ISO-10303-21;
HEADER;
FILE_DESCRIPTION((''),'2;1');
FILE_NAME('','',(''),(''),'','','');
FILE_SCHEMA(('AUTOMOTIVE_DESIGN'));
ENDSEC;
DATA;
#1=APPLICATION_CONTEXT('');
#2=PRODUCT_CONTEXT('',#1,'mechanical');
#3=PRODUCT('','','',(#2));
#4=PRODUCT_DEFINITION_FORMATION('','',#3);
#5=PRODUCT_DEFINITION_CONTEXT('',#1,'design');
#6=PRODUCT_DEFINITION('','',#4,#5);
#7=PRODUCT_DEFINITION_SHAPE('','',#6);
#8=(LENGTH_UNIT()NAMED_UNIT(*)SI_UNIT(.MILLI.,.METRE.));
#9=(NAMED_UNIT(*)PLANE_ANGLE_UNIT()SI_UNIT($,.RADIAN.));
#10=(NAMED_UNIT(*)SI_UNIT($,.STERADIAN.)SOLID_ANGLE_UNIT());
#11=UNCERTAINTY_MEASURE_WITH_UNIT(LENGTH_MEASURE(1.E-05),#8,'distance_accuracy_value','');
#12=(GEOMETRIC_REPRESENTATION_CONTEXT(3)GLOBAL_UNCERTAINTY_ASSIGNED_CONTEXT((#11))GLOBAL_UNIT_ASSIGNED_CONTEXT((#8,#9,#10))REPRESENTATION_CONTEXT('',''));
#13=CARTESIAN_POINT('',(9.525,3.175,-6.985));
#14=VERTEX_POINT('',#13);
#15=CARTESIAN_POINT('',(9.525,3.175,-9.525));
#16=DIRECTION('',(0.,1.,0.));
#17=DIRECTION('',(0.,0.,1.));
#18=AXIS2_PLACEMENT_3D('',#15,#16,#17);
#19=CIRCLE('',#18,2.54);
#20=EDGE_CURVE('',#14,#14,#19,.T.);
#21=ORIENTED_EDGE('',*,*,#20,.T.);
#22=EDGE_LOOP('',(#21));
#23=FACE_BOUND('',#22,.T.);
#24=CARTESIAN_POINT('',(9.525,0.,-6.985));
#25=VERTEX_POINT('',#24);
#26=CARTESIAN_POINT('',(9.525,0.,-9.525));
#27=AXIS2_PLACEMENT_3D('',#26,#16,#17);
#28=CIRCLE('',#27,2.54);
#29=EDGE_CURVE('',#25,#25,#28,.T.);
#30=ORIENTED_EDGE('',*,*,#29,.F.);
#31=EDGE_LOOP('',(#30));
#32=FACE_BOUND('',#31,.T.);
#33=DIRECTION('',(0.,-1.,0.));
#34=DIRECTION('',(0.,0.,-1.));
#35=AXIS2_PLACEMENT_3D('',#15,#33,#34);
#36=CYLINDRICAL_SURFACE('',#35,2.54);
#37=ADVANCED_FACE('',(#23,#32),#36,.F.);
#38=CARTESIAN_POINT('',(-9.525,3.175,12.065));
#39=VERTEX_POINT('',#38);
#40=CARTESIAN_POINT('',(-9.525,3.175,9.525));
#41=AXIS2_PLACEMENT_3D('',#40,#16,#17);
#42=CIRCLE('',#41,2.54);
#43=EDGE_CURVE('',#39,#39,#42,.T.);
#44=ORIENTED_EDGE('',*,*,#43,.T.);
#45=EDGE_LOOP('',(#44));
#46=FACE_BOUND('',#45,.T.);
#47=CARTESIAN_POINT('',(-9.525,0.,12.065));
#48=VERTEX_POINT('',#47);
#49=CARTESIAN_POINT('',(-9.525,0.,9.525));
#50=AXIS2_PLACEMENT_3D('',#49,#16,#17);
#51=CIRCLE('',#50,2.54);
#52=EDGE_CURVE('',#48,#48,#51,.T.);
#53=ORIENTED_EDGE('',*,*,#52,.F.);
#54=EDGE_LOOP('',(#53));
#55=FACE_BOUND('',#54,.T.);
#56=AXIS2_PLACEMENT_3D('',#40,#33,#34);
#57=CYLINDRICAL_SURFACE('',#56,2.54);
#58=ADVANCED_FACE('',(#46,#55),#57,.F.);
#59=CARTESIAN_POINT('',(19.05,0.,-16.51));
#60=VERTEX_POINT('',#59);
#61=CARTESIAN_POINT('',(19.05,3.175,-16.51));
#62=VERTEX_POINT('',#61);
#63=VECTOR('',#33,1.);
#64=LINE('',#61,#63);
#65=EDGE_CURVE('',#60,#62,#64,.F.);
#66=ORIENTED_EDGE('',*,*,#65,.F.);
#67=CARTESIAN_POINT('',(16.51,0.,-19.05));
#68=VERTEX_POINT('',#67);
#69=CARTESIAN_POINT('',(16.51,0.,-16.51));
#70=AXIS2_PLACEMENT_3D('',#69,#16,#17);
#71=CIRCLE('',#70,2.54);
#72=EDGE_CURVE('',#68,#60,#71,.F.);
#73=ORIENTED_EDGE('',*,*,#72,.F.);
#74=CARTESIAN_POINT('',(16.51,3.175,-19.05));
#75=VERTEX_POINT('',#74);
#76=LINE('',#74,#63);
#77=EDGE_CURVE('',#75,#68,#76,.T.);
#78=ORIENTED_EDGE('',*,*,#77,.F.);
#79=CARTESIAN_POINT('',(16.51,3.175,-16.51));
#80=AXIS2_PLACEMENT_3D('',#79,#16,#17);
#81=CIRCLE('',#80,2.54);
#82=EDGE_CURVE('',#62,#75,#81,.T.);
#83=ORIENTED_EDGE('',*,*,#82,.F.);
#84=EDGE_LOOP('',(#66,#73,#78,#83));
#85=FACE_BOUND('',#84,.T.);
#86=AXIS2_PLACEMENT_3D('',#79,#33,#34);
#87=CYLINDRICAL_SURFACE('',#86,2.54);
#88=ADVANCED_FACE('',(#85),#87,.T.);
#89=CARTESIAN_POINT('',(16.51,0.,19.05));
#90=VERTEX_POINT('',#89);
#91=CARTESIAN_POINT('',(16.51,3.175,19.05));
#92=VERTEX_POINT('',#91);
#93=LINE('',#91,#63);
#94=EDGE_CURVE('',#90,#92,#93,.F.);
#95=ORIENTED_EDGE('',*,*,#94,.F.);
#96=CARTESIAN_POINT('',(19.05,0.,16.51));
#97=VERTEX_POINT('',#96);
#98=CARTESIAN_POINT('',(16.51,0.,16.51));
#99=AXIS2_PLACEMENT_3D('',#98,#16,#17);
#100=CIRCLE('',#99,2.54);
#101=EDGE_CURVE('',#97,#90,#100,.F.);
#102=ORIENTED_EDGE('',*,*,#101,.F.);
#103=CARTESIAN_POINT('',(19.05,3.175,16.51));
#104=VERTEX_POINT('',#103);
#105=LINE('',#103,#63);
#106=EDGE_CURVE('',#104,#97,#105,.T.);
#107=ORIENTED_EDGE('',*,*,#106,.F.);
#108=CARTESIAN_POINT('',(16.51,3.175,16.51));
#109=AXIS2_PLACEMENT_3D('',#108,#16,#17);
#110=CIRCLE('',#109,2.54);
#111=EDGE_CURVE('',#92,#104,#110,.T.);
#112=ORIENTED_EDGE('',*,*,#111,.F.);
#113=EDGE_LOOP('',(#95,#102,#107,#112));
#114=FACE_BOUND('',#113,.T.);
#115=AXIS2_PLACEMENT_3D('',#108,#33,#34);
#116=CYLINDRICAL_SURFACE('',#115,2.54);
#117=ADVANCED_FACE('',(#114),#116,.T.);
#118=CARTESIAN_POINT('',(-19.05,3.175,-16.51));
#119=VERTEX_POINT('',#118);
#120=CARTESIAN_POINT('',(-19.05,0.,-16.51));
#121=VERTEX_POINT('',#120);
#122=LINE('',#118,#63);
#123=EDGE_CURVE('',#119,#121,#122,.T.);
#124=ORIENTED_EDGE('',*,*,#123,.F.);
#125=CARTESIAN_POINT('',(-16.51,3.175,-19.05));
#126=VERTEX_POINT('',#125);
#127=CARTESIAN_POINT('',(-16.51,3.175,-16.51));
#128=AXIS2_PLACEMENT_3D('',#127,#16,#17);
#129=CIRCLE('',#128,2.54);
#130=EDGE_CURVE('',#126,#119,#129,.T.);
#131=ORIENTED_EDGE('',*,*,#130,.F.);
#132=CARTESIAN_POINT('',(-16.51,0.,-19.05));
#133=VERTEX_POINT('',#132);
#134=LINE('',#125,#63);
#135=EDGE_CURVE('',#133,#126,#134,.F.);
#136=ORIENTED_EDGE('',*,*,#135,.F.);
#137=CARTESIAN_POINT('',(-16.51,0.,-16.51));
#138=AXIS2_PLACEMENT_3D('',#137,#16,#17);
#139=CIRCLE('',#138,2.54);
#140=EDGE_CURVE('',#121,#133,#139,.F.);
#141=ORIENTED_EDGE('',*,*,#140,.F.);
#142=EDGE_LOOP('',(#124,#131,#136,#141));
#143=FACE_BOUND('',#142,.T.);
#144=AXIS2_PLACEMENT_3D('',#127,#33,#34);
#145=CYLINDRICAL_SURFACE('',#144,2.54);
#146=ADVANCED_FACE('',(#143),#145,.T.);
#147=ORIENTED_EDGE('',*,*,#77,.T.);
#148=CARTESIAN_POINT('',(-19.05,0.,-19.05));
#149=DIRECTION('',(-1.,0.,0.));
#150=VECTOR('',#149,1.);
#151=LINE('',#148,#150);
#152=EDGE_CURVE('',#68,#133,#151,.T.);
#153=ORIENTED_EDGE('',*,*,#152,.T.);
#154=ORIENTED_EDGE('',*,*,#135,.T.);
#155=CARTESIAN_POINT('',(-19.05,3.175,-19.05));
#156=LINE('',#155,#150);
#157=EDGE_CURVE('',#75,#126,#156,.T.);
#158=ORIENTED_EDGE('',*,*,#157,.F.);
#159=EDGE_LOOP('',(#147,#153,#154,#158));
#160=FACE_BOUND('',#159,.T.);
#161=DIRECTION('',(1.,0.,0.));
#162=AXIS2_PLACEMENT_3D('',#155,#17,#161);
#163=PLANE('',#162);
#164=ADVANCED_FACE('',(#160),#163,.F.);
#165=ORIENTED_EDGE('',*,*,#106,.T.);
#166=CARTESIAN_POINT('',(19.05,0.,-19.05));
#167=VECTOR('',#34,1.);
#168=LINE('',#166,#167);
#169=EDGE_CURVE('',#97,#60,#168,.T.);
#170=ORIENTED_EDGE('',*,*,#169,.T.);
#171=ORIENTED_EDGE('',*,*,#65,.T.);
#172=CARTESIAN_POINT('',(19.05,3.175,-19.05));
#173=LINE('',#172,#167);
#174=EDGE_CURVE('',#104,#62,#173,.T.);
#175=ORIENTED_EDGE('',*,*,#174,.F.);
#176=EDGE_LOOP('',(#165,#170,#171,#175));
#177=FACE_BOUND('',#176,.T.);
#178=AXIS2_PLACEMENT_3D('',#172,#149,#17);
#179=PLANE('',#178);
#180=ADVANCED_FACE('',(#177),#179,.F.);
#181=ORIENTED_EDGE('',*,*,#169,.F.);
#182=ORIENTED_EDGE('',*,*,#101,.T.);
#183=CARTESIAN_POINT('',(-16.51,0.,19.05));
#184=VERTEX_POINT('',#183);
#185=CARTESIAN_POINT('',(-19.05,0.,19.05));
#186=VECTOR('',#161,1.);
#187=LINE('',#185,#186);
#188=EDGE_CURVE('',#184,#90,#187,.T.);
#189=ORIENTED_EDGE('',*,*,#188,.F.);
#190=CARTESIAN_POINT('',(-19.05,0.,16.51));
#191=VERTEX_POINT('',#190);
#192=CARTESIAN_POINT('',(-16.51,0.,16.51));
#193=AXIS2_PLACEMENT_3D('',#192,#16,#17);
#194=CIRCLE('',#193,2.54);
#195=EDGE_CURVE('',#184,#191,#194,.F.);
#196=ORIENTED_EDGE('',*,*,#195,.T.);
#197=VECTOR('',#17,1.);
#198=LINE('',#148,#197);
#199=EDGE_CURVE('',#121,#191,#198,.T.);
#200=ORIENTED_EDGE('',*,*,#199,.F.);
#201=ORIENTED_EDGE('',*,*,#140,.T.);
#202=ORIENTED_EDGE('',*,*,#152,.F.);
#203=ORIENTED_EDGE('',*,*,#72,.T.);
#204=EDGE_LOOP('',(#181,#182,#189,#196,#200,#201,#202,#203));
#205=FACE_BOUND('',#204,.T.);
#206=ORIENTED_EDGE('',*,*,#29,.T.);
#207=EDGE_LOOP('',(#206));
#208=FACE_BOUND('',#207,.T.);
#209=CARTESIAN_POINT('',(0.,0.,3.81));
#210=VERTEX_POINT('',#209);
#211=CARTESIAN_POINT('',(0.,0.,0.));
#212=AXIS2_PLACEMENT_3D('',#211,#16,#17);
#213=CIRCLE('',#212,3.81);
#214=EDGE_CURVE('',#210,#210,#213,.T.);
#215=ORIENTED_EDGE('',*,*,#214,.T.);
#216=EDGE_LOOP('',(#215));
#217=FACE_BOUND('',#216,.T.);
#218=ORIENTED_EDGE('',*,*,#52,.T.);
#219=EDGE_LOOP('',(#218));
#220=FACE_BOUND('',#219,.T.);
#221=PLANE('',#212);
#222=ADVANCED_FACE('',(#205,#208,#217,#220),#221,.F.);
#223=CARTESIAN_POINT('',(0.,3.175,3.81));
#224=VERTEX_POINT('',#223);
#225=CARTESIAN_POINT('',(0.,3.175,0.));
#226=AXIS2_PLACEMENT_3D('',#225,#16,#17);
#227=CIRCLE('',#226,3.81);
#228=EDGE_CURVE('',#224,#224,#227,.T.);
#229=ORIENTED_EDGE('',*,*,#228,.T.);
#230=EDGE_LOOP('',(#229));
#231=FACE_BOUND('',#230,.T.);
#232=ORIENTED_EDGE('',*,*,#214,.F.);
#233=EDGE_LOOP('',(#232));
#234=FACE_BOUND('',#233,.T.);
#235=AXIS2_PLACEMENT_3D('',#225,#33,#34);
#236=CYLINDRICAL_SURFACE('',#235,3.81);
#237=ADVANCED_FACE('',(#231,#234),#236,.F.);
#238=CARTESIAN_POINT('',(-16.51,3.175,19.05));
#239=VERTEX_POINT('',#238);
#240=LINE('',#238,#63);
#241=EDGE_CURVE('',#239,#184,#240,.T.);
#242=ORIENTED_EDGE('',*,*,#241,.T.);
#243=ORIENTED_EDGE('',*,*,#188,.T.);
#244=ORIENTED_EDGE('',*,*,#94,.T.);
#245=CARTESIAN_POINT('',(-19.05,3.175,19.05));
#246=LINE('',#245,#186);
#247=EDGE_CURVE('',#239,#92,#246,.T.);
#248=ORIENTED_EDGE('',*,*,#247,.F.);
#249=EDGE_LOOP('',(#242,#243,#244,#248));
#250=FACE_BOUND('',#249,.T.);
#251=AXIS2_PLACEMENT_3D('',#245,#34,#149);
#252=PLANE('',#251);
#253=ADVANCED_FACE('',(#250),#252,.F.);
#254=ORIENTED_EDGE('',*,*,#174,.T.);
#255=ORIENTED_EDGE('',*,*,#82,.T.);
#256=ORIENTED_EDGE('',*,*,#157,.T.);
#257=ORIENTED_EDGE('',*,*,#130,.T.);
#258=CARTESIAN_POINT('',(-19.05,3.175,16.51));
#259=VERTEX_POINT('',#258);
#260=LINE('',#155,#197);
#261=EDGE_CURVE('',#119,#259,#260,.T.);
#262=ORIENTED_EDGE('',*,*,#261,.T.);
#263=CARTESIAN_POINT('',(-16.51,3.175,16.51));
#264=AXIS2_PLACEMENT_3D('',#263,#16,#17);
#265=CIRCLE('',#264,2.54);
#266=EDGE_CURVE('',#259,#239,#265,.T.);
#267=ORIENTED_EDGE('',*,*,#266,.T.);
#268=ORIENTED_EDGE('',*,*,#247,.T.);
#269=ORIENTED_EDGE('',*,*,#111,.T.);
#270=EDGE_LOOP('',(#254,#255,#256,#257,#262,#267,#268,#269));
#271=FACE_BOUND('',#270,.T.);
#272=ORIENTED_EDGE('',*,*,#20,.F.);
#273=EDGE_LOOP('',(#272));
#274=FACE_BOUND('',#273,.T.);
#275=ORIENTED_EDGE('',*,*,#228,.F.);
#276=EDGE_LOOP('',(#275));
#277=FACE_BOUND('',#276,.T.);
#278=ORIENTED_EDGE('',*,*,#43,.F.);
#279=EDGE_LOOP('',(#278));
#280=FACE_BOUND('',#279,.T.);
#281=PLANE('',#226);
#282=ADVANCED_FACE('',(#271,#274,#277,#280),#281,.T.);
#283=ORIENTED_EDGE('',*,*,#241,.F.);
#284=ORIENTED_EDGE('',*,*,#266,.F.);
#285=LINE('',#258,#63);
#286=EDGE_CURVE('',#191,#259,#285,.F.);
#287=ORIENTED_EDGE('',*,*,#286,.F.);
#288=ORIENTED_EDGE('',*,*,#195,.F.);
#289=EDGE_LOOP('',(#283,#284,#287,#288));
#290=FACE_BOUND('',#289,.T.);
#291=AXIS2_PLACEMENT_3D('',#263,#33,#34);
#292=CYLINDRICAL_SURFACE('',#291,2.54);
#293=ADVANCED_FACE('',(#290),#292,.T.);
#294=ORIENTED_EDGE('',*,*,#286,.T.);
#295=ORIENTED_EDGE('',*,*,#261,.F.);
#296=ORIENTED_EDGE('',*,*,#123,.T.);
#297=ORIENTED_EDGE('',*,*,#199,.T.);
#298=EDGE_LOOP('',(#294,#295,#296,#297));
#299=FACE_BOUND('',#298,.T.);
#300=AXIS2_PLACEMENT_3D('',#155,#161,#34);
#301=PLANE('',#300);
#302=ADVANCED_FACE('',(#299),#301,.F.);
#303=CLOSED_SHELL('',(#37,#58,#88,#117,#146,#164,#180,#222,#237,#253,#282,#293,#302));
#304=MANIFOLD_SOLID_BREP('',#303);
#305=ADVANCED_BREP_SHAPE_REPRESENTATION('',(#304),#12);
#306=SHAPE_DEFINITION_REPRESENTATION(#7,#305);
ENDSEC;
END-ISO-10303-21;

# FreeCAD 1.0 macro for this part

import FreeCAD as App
import Part
import Sketcher

V = App.Vector
Q = App.Units.Quantity


def edges_at(feature, points):
    """Names of the edges that pass closest to the given points."""
    edges = feature.Shape.Edges
    near = lambda p: min(range(len(edges)), key=lambda i: edges[i].distToShape(Part.Vertex(*p))[0])
    return sorted({f"Edge{near(p) + 1}" for p in points})


def add_polygon(sketch, points):
    """Adds a closed chain of lines whose ends are joined by coincident constraints."""
    first, n = sketch.GeometryCount, len(points)
    for a, b in zip(points, points[1:] + points[:1]):
        sketch.addGeometry(Part.LineSegment(App.Vector(*a, 0), App.Vector(*b, 0)), False)
    for i in range(n):
        sketch.addConstraint(Sketcher.Constraint("Coincident", first + i, 2, first + (i + 1) % n, 1))

doc = App.newDocument("Part")
body = doc.addObject("PartDesign::Body", "Body")

# Sketch on XZ plane
sketch1 = body.newObject("Sketcher::SketchObject", "Sketch")
sketch1.AttachmentSupport = (doc.getObject("XZ_Plane"), [""])
sketch1.MapMode = "FlatFace"
add_polygon(sketch1, [(-19.1, -19.1), (-19.1, 19.1), (19.1, 19.1), (19.1, -19.1)])  # lines 0-3
sketch1.addGeometry(Part.Circle(V(-9.5, 9.5, 0), V(0, 0, 1), 2.5), False)  # 4
sketch1.addGeometry(Part.Circle(V(0, 0, 0), V(0, 0, 1), 3.8), False)  # 5
sketch1.addGeometry(Part.Circle(V(9.5, -9.5, 0), V(0, 0, 1), 2.5), False)  # 6
sketch1.addConstraint([
    Sketcher.Constraint("Vertical", 0),
    Sketcher.Constraint("Horizontal", 1),
    Sketcher.Constraint("Vertical", 2),
    Sketcher.Constraint("Horizontal", 3),
    Sketcher.Constraint("Coincident", 5, 3, -1, 1),
    Sketcher.Constraint("Equal", 4, 6),
    Sketcher.Constraint("Symmetric", 4, 3, 6, 3, -1, 1),
    Sketcher.Constraint("Symmetric", 0, 2, 2, 2, -1, 1),
    Sketcher.Constraint("Equal", 3, 0),
    Sketcher.Constraint("Diameter", 4, Q("0.2 in")),
    Sketcher.Constraint("Diameter", 5, Q("0.3 in")),
    Sketcher.Constraint("DistanceX", 1, 1, 1, 2, Q("1.5 in")),
    Sketcher.Constraint("DistanceX", 4, 3, 6, 3, Q("0.75 in")),
    Sketcher.Constraint("DistanceY", 6, 3, 4, 3, Q("0.75 in")),
])
pad1 = body.newObject("PartDesign::Pad", "Pad")
pad1.Profile = sketch1
pad1.Length = Q("0.125 in")
pad1.Reversed = True
doc.recompute()

fillet = body.newObject("PartDesign::Fillet", "Fillet")
fillet.Base = (pad1, edges_at(pad1, [
    (-19.05, 1.587, -19.05),
    (19.05, 1.587, -19.05),
    (19.05, 1.587, 19.05),
    (-19.05, 1.587, 19.05),
]))
fillet.Radius = Q("0.1 in")

doc.recompute()
